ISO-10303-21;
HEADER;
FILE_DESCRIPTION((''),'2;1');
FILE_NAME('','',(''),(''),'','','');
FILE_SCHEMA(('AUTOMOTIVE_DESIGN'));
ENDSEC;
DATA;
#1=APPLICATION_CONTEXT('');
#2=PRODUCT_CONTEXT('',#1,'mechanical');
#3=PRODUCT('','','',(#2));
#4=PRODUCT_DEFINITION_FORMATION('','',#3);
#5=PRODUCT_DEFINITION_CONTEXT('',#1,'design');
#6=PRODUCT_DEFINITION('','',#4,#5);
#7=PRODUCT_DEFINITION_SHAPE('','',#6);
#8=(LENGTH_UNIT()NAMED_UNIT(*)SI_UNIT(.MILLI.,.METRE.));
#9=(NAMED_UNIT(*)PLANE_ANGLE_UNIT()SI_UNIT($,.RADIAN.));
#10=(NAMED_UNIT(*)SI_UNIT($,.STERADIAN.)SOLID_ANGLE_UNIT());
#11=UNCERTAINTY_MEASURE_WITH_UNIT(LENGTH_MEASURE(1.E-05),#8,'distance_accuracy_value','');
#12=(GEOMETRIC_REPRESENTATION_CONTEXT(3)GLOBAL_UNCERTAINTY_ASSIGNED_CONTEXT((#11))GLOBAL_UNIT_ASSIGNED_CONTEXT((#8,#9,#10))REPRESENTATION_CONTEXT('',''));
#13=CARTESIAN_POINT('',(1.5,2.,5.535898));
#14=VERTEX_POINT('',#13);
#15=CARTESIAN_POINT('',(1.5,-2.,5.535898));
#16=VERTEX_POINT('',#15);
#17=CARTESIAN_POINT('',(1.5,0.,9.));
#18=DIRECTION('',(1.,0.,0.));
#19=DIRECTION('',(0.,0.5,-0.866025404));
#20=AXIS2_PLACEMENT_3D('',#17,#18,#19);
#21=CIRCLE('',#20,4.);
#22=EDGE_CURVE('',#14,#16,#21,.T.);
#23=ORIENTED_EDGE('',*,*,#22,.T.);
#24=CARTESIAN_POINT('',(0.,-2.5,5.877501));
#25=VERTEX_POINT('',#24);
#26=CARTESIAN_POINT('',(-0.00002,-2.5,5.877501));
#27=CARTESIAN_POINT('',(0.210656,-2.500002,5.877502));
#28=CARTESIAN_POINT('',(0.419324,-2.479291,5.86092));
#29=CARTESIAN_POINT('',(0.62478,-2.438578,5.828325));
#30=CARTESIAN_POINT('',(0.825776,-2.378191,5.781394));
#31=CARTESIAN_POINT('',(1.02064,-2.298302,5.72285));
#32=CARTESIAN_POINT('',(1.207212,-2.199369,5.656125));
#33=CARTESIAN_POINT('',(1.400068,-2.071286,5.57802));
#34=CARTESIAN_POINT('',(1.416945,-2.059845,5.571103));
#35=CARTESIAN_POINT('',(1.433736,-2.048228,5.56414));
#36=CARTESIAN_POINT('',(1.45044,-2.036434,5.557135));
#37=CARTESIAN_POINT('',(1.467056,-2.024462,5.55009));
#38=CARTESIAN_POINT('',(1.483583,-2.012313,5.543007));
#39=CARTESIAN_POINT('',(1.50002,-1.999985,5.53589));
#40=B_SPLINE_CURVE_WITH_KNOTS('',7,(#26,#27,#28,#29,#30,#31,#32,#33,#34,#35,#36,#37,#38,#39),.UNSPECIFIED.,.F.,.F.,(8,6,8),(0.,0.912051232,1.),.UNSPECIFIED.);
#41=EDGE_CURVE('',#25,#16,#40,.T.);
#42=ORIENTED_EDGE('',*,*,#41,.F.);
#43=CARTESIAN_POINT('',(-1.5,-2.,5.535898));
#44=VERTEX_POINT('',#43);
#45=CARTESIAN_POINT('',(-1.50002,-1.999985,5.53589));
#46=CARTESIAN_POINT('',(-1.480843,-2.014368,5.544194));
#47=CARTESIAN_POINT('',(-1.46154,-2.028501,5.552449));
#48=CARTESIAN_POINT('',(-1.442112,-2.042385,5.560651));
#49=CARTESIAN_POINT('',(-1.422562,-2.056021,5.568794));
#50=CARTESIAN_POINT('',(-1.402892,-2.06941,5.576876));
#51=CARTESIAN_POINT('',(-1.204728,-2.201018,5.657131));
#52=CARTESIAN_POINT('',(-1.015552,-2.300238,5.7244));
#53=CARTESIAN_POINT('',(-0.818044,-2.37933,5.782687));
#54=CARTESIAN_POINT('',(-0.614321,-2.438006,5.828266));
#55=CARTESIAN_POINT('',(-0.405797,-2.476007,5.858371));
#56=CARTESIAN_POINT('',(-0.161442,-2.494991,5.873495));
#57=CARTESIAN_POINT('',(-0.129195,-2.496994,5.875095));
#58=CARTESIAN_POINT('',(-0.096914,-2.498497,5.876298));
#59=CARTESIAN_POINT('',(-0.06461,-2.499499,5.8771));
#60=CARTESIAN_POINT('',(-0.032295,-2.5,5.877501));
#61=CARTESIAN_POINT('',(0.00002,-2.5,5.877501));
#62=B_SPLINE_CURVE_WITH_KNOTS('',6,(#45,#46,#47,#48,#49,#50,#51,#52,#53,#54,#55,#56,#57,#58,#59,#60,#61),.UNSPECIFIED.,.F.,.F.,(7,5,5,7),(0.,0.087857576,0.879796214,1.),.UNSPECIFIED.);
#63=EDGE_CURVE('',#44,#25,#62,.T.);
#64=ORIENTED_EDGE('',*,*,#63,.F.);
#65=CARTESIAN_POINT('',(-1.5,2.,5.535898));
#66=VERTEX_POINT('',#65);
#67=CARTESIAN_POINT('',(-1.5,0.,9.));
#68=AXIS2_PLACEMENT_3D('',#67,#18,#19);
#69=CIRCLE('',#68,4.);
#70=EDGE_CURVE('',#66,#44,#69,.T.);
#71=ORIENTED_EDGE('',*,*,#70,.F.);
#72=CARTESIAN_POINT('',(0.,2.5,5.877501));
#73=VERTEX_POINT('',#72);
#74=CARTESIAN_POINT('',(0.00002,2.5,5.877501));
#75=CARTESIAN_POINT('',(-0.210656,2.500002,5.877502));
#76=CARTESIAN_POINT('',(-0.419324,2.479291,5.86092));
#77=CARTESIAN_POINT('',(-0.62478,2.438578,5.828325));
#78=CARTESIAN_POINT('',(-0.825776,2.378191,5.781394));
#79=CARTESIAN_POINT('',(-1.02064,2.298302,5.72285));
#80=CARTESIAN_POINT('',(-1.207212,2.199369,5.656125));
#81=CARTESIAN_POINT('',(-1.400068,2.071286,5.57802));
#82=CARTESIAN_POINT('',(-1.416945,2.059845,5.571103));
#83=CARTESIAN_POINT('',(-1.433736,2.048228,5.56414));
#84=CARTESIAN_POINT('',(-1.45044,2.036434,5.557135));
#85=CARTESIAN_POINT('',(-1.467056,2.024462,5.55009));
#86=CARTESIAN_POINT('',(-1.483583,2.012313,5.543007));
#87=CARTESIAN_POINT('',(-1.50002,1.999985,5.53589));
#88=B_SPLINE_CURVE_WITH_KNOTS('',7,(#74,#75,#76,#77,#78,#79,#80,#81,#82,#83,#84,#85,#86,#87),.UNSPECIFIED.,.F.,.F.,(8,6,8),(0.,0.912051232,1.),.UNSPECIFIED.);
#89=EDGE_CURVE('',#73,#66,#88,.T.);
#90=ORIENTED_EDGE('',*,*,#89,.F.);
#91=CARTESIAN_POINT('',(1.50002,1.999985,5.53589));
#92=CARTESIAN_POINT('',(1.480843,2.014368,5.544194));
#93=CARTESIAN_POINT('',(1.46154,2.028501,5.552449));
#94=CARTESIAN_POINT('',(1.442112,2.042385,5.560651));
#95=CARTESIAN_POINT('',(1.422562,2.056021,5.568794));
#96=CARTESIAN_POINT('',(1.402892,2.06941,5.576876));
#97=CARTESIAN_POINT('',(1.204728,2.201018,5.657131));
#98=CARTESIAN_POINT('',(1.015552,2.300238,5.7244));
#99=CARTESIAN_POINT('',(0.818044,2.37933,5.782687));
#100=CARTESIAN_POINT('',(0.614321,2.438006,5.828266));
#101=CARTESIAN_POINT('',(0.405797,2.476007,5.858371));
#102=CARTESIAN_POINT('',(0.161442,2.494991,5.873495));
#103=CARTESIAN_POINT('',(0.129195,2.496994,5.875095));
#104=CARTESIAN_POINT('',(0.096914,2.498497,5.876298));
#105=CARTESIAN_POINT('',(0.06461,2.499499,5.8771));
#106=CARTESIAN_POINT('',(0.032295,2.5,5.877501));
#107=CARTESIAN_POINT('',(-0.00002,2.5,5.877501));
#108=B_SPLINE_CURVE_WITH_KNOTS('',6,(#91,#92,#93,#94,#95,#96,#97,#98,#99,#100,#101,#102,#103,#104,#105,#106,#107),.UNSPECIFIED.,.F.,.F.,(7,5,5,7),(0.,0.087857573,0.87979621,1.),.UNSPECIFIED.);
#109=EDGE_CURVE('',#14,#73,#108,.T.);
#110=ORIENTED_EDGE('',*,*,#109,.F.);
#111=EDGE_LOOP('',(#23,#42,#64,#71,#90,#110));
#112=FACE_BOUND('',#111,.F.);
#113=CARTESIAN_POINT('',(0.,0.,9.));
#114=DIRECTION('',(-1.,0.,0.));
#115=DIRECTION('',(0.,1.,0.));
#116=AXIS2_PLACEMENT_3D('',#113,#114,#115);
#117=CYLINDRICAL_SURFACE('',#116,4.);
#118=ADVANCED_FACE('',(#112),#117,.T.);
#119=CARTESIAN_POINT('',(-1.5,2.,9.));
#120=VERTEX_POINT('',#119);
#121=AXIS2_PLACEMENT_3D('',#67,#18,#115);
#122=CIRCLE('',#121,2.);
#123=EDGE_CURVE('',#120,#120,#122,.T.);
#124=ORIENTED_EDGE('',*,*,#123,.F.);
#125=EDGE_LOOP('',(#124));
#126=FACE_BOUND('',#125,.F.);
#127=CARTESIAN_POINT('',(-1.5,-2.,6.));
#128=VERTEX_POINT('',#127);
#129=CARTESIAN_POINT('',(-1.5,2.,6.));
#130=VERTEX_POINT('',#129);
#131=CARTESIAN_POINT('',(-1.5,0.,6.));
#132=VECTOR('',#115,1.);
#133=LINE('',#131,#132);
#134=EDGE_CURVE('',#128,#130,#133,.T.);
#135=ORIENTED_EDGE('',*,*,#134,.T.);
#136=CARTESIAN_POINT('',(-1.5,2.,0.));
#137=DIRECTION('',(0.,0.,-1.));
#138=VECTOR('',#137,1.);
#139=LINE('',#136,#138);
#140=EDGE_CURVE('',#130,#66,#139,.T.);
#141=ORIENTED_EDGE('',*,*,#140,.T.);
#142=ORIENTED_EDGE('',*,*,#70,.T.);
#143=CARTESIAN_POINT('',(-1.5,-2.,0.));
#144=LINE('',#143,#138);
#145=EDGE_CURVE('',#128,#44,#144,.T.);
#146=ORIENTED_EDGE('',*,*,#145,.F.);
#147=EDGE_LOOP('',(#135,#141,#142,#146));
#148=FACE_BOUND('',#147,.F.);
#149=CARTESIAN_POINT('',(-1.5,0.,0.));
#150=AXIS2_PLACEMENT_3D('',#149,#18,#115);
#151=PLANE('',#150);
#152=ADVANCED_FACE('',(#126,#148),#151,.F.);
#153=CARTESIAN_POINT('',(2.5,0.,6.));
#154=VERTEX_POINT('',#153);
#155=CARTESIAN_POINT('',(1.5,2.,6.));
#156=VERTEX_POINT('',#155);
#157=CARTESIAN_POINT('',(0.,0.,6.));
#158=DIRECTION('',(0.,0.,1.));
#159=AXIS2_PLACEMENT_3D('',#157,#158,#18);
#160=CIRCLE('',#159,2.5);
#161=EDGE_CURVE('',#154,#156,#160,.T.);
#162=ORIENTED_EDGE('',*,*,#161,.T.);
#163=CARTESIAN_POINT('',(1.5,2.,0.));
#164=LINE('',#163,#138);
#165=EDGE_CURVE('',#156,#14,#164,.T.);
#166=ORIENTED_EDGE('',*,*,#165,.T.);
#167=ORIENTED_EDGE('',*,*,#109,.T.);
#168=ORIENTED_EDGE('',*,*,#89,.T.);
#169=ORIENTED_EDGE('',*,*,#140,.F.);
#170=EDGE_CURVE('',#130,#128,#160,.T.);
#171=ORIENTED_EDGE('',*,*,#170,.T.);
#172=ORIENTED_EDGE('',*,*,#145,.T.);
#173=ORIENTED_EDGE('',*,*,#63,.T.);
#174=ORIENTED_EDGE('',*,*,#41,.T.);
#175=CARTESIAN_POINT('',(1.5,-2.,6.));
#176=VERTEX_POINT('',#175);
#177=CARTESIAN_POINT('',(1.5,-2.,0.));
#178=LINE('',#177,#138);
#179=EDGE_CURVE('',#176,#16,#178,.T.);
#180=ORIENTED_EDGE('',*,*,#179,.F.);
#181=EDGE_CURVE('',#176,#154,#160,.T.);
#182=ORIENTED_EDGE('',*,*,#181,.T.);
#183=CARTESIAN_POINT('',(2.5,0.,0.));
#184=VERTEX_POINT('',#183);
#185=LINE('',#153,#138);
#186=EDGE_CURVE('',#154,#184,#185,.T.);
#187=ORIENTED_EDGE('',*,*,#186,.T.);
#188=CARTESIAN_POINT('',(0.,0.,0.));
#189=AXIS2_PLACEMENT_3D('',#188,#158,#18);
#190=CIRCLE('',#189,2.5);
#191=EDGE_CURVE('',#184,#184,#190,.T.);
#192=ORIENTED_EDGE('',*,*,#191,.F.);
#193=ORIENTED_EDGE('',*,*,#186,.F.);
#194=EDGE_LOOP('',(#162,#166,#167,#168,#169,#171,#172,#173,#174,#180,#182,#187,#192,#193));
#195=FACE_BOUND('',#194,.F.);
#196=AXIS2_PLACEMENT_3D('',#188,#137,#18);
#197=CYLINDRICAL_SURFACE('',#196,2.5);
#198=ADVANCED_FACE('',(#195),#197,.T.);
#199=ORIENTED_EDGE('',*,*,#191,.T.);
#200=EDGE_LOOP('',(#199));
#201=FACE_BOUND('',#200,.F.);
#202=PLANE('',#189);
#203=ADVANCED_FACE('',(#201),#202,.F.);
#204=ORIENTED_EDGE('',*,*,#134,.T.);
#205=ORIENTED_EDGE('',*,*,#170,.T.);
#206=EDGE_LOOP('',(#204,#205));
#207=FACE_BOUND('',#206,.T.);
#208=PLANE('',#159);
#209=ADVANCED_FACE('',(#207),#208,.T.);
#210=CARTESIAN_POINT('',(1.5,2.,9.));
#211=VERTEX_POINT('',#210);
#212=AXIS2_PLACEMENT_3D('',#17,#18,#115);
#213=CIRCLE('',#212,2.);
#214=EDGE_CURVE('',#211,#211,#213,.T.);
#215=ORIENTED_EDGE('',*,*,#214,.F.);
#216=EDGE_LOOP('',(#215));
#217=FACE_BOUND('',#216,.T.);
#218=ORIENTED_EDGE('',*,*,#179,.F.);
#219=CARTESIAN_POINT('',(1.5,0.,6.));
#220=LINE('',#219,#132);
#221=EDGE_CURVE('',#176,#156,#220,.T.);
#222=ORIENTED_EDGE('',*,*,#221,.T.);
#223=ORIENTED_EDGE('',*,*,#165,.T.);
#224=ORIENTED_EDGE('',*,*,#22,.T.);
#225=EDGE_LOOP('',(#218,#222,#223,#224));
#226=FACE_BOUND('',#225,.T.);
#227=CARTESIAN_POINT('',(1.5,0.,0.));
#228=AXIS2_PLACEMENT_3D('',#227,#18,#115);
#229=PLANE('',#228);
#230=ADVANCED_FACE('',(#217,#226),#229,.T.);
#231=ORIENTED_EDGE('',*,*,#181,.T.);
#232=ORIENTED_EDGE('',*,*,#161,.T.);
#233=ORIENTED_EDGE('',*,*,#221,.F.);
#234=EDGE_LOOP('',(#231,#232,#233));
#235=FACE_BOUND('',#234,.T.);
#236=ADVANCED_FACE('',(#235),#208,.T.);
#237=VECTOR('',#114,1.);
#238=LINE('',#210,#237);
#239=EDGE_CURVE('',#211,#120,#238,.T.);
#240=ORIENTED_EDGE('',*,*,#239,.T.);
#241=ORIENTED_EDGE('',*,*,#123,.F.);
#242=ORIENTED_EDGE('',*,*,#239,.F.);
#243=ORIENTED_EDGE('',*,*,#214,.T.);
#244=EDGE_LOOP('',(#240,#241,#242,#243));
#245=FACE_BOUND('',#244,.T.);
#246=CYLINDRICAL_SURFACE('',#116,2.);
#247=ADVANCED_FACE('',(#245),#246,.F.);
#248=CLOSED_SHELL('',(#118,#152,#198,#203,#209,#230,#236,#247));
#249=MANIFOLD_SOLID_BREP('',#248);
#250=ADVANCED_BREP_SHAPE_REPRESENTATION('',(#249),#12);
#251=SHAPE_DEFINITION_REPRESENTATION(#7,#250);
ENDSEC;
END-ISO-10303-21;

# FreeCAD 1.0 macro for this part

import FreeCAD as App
import Part
import Sketcher
Q = App.Units.Quantity

doc = App.newDocument("Part")
body = doc.addObject("PartDesign::Body", "Body")

# Sketch on XY plane
sketch1 = doc.addObject("Sketcher::SketchObject", "Sketch")
body.addObject(sketch1)
sketch1.AttachmentSupport = (doc.XY_Plane, [""])
sketch1.MapMode = "FlatFace"
sketch1.addGeometry(Part.Circle(App.Vector(0, 0, 0), App.Vector(0, 0, 1), 2.5), False)
sketch1.addConstraint([
    Sketcher.Constraint("Coincident", 0, 3, -1, 1),
    Sketcher.Constraint("Diameter", 0, Q("5 mm")),
])
pad1 = doc.addObject("PartDesign::Pad", "Pad")
body.addObject(pad1)
pad1.Profile = sketch1
pad1.Length = 5

# Sketch on XY plane
sketch2 = doc.addObject("Sketcher::SketchObject", "Sketch001")
body.addObject(sketch2)
sketch2.AttachmentSupport = (doc.XY_Plane, [""])
sketch2.MapMode = "FlatFace"
sketch2.AttachmentOffset = App.Placement(App.Vector(0, 0, 5), App.Rotation())
sketch2.addGeometry(Part.Circle(App.Vector(0, 0, 0), App.Vector(0, 0, 1), 2.5), False)
sketch2.addConstraint([
    Sketcher.Constraint("Coincident", 0, 3, -1, 1),
    Sketcher.Constraint("Diameter", 0, Q("5 mm")),
])
pad2 = doc.addObject("PartDesign::Pad", "Pad001")
body.addObject(pad2)
pad2.Profile = sketch2
pad2.Length = 1

# Sketch on YZ plane
sketch3 = doc.addObject("Sketcher::SketchObject", "Sketch002")
body.addObject(sketch3)
sketch3.AttachmentSupport = (doc.YZ_Plane, [""])
sketch3.MapMode = "FlatFace"
sketch3.addGeometry([
    Part.Circle(App.Vector(0, 9, 0), App.Vector(0, 0, 1), 4),
    Part.Circle(App.Vector(0, 9, 0), App.Vector(0, 0, 1), 2),
], False)
sketch3.addConstraint([
    Sketcher.Constraint("Coincident", 1, 3, 0, 3),
    Sketcher.Constraint("PointOnObject", 0, 3, -2),
    Sketcher.Constraint("Diameter", 0, Q("8 mm")),
    Sketcher.Constraint("Diameter", 1, Q("4 mm")),
    Sketcher.Constraint("DistanceY", -1, 1, 0, 3, Q("9 mm")),
])
pad3 = doc.addObject("PartDesign::Pad", "Pad002")
body.addObject(pad3)
pad3.Profile = sketch3
pad3.Length = 3
pad3.Midplane = True

doc.recompute()
